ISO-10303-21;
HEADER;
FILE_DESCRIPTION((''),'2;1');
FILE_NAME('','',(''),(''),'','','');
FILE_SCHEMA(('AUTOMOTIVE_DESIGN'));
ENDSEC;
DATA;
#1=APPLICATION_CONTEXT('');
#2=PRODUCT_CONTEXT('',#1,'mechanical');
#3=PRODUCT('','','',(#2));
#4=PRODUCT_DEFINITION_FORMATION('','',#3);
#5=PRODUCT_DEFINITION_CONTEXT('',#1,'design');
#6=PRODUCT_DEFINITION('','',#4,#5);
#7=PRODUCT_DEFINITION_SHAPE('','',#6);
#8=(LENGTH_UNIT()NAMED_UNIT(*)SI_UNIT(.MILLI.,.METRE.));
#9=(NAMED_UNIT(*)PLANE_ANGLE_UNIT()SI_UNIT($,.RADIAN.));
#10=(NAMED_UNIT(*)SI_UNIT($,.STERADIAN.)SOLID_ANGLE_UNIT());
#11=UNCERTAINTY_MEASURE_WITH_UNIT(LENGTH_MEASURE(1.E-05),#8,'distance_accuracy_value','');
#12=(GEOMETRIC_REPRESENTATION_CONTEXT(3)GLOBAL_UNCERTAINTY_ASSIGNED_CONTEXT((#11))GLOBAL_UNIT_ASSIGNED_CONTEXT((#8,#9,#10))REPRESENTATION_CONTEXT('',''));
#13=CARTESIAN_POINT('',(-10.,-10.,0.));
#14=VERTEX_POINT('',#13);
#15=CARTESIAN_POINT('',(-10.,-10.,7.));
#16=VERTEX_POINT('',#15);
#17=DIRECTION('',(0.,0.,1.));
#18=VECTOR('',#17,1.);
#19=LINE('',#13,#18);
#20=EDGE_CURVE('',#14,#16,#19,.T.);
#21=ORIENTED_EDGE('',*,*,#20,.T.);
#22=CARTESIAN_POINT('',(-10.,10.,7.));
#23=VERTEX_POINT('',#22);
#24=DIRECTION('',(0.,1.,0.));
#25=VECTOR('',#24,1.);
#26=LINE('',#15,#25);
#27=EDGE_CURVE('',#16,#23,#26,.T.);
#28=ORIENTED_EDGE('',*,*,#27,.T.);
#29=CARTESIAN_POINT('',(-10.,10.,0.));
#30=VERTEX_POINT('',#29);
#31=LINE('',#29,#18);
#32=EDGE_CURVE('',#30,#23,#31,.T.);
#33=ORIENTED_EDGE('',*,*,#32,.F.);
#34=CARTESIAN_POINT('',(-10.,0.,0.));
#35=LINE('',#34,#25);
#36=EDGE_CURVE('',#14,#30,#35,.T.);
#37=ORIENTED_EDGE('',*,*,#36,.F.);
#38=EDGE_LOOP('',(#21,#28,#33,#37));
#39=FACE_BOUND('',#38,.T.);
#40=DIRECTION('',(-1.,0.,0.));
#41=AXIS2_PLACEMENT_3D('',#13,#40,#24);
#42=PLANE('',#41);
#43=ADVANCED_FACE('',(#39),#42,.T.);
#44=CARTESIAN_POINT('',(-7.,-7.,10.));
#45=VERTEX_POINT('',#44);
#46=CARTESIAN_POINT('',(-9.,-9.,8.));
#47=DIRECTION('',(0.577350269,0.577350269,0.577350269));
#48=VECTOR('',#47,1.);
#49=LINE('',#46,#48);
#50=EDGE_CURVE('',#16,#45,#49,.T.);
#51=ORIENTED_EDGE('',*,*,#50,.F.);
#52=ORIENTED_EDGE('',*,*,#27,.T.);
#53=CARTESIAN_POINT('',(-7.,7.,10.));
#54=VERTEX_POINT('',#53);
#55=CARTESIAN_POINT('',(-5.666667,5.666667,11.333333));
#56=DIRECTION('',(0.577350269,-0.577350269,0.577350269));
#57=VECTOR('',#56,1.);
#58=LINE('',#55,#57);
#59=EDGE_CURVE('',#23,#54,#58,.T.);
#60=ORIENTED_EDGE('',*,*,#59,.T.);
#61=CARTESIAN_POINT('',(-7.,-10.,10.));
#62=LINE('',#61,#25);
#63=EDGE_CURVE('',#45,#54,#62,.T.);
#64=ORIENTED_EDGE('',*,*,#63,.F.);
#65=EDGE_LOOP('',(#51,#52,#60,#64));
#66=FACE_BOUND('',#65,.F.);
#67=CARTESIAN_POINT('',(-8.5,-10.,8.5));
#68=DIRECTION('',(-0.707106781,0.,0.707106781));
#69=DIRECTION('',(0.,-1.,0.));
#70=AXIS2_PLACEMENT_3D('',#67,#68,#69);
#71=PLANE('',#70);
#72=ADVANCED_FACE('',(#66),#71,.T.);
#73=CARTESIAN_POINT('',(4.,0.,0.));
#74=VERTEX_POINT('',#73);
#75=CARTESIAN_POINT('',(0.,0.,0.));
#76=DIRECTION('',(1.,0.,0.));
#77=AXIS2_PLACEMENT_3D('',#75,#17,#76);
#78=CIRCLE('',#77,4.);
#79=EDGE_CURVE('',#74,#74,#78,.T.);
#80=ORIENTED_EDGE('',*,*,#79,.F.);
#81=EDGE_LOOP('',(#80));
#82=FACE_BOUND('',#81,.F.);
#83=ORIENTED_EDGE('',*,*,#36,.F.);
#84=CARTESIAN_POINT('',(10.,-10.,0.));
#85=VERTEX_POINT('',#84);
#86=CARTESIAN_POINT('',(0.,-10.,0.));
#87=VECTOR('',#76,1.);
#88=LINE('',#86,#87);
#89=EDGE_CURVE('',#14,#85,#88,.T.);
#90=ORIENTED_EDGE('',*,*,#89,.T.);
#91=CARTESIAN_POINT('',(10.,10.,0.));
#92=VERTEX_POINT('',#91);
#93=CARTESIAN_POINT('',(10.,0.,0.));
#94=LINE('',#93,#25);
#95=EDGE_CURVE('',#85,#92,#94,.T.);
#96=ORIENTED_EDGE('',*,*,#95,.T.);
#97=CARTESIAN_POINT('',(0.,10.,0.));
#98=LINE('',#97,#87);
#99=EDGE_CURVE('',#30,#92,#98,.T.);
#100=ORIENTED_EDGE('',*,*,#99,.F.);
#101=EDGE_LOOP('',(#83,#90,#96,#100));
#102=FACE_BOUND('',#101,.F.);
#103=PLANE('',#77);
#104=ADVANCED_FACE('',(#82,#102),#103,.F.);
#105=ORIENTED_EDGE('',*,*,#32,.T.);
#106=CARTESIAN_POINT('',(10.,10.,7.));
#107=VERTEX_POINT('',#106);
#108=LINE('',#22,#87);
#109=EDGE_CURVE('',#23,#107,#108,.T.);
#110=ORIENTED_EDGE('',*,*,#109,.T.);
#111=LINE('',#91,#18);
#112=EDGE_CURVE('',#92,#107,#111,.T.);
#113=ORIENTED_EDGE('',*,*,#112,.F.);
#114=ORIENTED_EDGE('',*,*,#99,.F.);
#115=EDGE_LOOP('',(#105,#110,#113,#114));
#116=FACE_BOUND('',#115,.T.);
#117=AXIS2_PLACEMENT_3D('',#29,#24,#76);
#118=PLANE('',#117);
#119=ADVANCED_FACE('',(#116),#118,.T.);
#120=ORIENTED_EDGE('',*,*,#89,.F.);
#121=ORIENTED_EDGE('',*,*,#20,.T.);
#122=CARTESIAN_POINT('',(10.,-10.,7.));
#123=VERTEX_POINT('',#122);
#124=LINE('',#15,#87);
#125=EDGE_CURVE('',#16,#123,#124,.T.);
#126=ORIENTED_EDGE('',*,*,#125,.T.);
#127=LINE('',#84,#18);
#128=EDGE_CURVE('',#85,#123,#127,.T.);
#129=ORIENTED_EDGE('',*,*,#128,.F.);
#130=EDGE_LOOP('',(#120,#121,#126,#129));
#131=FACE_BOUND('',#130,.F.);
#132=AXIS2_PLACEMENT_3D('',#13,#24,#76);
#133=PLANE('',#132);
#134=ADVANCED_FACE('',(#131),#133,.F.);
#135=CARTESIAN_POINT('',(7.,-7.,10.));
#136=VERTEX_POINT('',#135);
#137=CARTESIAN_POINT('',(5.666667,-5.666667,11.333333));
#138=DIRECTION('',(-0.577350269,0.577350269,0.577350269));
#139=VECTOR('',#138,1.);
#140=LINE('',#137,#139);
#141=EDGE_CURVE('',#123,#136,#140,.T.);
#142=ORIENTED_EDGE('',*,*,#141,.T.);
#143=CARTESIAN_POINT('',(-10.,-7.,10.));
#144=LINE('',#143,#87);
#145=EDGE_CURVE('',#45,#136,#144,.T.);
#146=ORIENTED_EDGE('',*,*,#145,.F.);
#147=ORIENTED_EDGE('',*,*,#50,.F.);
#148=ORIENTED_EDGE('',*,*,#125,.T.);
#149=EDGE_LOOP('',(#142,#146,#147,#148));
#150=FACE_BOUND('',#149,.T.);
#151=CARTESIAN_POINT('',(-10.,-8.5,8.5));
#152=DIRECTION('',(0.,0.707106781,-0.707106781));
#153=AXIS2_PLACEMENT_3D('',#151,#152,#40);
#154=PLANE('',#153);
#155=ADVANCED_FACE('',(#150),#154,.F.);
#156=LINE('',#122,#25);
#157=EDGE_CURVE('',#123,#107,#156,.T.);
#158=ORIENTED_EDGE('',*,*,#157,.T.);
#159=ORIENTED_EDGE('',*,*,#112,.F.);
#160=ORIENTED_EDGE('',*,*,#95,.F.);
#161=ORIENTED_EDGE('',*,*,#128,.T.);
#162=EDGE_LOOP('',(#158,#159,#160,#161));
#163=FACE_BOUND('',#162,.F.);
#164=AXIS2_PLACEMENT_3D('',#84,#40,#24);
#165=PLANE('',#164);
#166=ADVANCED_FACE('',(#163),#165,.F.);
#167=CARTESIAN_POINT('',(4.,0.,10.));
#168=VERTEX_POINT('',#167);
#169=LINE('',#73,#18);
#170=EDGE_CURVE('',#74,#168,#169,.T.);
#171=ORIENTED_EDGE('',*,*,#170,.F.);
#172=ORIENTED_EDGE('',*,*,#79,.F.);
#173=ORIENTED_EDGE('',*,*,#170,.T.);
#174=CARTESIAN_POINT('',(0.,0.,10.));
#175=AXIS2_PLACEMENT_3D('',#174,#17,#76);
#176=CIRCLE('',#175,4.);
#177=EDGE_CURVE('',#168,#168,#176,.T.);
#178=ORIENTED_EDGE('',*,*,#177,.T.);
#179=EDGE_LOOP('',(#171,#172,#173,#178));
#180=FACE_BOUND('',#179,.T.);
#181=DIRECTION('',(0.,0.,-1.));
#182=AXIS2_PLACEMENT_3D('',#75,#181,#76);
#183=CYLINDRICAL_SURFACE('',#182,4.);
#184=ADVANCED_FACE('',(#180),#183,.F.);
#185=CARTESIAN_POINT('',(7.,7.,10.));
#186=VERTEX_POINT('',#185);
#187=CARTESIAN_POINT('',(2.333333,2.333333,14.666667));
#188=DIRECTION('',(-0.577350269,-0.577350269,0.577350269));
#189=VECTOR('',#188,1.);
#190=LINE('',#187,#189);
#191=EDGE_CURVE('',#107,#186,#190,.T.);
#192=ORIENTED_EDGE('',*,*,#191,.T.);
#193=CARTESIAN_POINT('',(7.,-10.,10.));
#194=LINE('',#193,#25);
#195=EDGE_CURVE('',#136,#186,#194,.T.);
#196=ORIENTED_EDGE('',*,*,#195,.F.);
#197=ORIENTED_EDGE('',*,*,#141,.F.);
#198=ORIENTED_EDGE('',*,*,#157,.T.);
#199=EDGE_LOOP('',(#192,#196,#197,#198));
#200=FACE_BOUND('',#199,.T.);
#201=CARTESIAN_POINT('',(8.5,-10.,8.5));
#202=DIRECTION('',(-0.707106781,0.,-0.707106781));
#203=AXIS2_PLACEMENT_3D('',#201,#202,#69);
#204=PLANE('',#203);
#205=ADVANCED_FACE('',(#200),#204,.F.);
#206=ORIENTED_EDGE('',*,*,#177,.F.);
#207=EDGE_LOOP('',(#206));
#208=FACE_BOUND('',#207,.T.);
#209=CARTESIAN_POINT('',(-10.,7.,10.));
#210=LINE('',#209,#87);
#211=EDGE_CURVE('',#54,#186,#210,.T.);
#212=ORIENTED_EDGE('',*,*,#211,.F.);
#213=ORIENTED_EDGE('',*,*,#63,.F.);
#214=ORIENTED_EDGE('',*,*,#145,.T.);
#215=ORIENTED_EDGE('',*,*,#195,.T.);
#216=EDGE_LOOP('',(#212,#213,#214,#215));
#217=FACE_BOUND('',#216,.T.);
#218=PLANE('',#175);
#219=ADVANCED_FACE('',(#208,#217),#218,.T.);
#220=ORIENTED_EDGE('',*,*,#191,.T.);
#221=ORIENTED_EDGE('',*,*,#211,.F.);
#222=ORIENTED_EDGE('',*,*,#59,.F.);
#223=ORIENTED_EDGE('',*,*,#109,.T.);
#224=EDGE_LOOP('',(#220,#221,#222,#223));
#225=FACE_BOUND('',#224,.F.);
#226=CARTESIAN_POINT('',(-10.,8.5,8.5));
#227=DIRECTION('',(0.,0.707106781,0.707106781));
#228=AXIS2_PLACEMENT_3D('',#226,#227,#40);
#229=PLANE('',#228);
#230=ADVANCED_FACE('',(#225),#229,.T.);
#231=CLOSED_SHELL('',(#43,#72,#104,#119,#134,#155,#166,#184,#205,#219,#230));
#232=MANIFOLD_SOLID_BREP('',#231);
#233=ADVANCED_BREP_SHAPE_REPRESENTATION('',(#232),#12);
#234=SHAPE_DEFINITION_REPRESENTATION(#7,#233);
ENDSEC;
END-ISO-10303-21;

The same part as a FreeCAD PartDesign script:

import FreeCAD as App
import Part
import Sketcher

V = App.Vector
Q = App.Units.Quantity


def edges_at(feature, points):
    """Names of the edges that pass closest to the given points."""
    edges = feature.Shape.Edges
    near = lambda p: min(range(len(edges)), key=lambda i: edges[i].distToShape(Part.Vertex(*p))[0])
    return sorted({f"Edge{near(p) + 1}" for p in points})


def add_polygon(sketch, points):
    """Adds a closed chain of lines whose ends are joined by coincident constraints."""
    first, n = sketch.GeometryCount, len(points)
    for a, b in zip(points, points[1:] + points[:1]):
        sketch.addGeometry(Part.LineSegment(App.Vector(*a, 0), App.Vector(*b, 0)), False)
    for i in range(n):
        sketch.addConstraint(Sketcher.Constraint("Coincident", first + i, 2, first + (i + 1) % n, 1))

doc = App.newDocument("Part")
body = doc.addObject("PartDesign::Body", "Body")

# Sketch on XY plane
sketch1 = body.newObject("Sketcher::SketchObject", "Sketch")
sketch1.AttachmentSupport = (doc.getObject("XY_Plane"), [""])
sketch1.MapMode = "FlatFace"
add_polygon(sketch1, [(-10, 10), (-10, -10), (10, -10), (10, 10)])  # lines 0-3
sketch1.addGeometry(Part.Circle(V(0, 0, 0), V(0, 0, 1), 4), False)  # 4
sketch1.addConstraint([
    Sketcher.Constraint("Vertical", 0),
    Sketcher.Constraint("Horizontal", 1),
    Sketcher.Constraint("Vertical", 2),
    Sketcher.Constraint("Horizontal", 3),
    Sketcher.Constraint("Coincident", 4, 3, -1, 1),
    Sketcher.Constraint("Symmetric", 0, 2, 2, 2, -1, 1),
    Sketcher.Constraint("Equal", 3, 0),
    Sketcher.Constraint("Diameter", 4, Q("8 mm")),
    Sketcher.Constraint("DistanceX", 1, 1, 1, 2, Q("20 mm")),
])
pad1 = body.newObject("PartDesign::Pad", "Pad")
pad1.Profile = sketch1
pad1.Length = 10
doc.recompute()

chamfer = body.newObject("PartDesign::Chamfer", "Chamfer")
chamfer.Base = (pad1, edges_at(pad1, [
    (0, -10, 10),
    (-10, 0, 10),
    (0, 10, 10),
    (10, 0, 10),
]))
chamfer.Size = 3

doc.recompute()
